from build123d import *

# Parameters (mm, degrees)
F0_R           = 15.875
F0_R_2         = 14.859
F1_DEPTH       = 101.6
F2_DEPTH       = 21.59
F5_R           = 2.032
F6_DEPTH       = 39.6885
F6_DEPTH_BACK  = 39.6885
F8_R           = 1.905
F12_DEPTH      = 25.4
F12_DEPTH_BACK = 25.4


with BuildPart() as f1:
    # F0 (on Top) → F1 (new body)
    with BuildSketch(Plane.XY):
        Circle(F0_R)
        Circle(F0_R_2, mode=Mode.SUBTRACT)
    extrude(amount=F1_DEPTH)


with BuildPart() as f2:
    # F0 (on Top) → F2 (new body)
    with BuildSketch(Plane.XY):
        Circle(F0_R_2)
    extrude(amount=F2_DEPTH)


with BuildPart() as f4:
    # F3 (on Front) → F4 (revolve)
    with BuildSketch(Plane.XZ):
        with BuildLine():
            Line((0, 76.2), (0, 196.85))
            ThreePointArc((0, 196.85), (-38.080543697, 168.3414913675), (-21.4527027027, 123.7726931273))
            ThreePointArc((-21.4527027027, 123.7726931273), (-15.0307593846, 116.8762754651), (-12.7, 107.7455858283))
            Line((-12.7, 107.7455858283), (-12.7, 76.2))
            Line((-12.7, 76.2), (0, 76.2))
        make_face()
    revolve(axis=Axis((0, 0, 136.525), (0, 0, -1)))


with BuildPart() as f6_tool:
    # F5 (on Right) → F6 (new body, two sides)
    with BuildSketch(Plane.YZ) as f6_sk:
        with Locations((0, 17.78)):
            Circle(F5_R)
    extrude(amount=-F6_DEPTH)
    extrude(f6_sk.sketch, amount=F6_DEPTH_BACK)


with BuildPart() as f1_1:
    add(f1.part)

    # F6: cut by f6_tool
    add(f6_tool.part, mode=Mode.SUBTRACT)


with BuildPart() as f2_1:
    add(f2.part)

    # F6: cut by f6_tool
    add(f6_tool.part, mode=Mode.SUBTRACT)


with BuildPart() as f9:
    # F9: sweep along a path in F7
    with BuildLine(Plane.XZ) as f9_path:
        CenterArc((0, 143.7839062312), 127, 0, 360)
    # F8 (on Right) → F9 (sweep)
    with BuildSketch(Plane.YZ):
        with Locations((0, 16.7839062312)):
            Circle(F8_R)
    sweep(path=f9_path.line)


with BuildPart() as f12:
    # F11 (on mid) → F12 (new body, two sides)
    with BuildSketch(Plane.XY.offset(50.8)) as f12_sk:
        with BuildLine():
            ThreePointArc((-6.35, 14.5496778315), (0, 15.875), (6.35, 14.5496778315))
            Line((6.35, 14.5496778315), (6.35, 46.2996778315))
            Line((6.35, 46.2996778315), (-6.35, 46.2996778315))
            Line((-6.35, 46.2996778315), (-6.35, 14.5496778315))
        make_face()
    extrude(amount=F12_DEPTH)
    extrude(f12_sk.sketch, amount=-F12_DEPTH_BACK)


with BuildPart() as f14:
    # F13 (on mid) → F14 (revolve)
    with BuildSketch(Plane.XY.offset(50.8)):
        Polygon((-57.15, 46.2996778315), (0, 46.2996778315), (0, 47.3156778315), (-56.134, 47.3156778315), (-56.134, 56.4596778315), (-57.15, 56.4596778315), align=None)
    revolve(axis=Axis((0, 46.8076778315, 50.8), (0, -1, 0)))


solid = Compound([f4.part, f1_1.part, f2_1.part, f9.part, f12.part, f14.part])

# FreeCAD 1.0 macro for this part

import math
import FreeCAD as App
import Part
import Sketcher
Q = App.Units.Quantity


def add_polygon(sketch, points):
    """Adds a closed chain of lines whose ends are joined by coincident constraints."""
    first, n = sketch.GeometryCount, len(points)
    for a, b in zip(points, points[1:] + points[:1]):
        sketch.addGeometry(Part.LineSegment(App.Vector(*a, 0), App.Vector(*b, 0)), False)
    for i in range(n):
        sketch.addConstraint(Sketcher.Constraint("Coincident", first + i, 2, first + (i + 1) % n, 1))

doc = App.newDocument("Part")
body = doc.addObject("PartDesign::Body", "Body")

sketch1 = body.newObject("Sketcher::SketchObject", "Sketch")
sketch1.AttachmentSupport = (doc.getObject("XY_Plane"), [""])
sketch1.MapMode = "FlatFace"
sketch1.addGeometry([
    Part.Circle(App.Vector(0, 0, 0), App.Vector(0, 0, 1), 15.875),
    Part.Circle(App.Vector(0, 0, 0), App.Vector(0, 0, 1), 14.859),
], False)
sketch1.addConstraint([
    Sketcher.Constraint("Coincident", 0, 3, -1, 1),
    Sketcher.Constraint("Coincident", 1, 3, -1, 1),
    Sketcher.Constraint("Diameter", 0, Q("1.25 in")),
    Sketcher.Constraint("Diameter", 1, Q("1.17 in")),
])
pad1 = body.newObject("PartDesign::Pad", "Pad")
pad1.Profile = sketch1
pad1.Length = Q("4 in")
body2 = doc.addObject("PartDesign::Body", "Body001")

sketch2 = body2.newObject("Sketcher::SketchObject", "Sketch001")
sketch2.AttachmentSupport = (doc.getObject("XY_Plane001"), [""])
sketch2.MapMode = "FlatFace"
sketch2.addGeometry(Part.Circle(App.Vector(0, 0, 0), App.Vector(0, 0, 1), 14.859), False)
sketch2.addConstraint([
    Sketcher.Constraint("Coincident", 0, 3, -1, 1),
    Sketcher.Constraint("Diameter", 0, Q("1.17 in")),
])
pad2 = body2.newObject("PartDesign::Pad", "Pad001")
pad2.Profile = sketch2
pad2.Length = Q("0.85 in")
body3 = doc.addObject("PartDesign::Body", "Body002")

sketch3 = body3.newObject("Sketcher::SketchObject", "Sketch002")
sketch3.AttachmentSupport = (doc.getObject("XZ_Plane002"), [""])
sketch3.MapMode = "FlatFace"
sketch3.addGeometry([
    Part.LineSegment(App.Vector(0, 76.2, 0), App.Vector(0, 196.85, 0)),
    Part.ArcOfCircle(Part.Circle(App.Vector(0, 157.1625, 0), App.Vector(0, 0, 1), 39.6875), math.radians(90), math.radians(237.279557)),
    Part.ArcOfCircle(Part.Circle(App.Vector(-31.75, 107.745586, 0), App.Vector(0, 0, 1), 19.05), math.radians(0), math.radians(57.279557)),
    Part.LineSegment(App.Vector(-12.7, 107.745586, 0), App.Vector(-12.7, 76.2, 0)),
    Part.LineSegment(App.Vector(-12.7, 76.2, 0), App.Vector(0, 76.2, 0)),
], False)
sketch3.addConstraint([
    Sketcher.Constraint("Coincident", 0, 2, 1, 1),
    Sketcher.Constraint("Tangent", 1, 2, 2, 2),
    Sketcher.Constraint("Tangent", 2, 1, 3, 1),
    Sketcher.Constraint("Coincident", 3, 2, 4, 1),
    Sketcher.Constraint("Coincident", 4, 2, 0, 1),
    Sketcher.Constraint("Vertical", 0),
    Sketcher.Constraint("Vertical", 3),
    Sketcher.Constraint("Horizontal", 4),
    Sketcher.Constraint("PointOnObject", 1, 3, -2),
    Sketcher.Constraint("PointOnObject", 0, 2, -2),
    Sketcher.Constraint("Radius", 2, Q("0.75 in")),
    Sketcher.Constraint("DistanceX", 4, 1, 4, 2, Q("0.5 in")),
    Sketcher.Constraint("DistanceY", -1, 1, 3, 2, Q("3 in")),
    Sketcher.Constraint("Radius", 1, Q("1.5625 in")),
    Sketcher.Constraint("DistanceY", 0, 1, 0, 2, Q("4.75 in")),
])
revolution = body3.newObject("PartDesign::Revolution", "Revolution")
revolution.Profile = sketch3
revolution.ReferenceAxis = (sketch3, ["V_Axis"])
revolution.Angle = 360
body4 = doc.addObject("PartDesign::Body", "Body003")

sketch4 = body4.newObject("Sketcher::SketchObject", "Sketch003")
sketch4.AttachmentSupport = (doc.getObject("YZ_Plane003"), [""])
sketch4.MapMode = "FlatFace"
sketch4.addGeometry(Part.Circle(App.Vector(0, 17.78, 0), App.Vector(0, 0, 1), 2.032), False)
sketch4.addConstraint([
    Sketcher.Constraint("PointOnObject", 0, 3, -2),
    Sketcher.Constraint("Diameter", 0, Q("0.16 in")),
    Sketcher.Constraint("DistanceY", -1, 1, 0, 3, Q("0.7 in")),
])
pad3 = body4.newObject("PartDesign::Pad", "Pad002")
pad3.Profile = sketch4
pad3.Type = "TwoLengths"
pad3.Length = 39.6885
pad3.Length2 = 39.6885
pad3.Reversed = True
doc.recompute()

body5 = doc.addObject("PartDesign::Body", "Body004")
body5.BaseFeature = body4
boolean = body.newObject("PartDesign::Boolean", "Boolean")
boolean.Type = "Cut"
boolean.addObjects([body5])
doc.recompute()

boolean2 = body2.newObject("PartDesign::Boolean", "Boolean001")
boolean2.Type = "Cut"
boolean2.addObjects([body4])
body6 = doc.addObject("PartDesign::Body", "Body005")

sketch5 = body6.newObject("Sketcher::SketchObject", "Sketch004")
sketch5.AttachmentSupport = (doc.getObject("YZ_Plane005"), [""])
sketch5.MapMode = "FlatFace"
sketch5.addGeometry(Part.Circle(App.Vector(0, 16.783906, 0), App.Vector(0, 0, 1), 1.905), False)
sketch5.addConstraint([
    Sketcher.Constraint("PointOnObject", 0, 3, -2),
    Sketcher.Constraint("Diameter", 0, Q("0.15 in")),
    Sketcher.Constraint("DistanceY", -1, 1, 0, 3, 16.783906),
])

sketch6 = body6.newObject("Sketcher::SketchObject", "Sketch005")
sketch6.AttachmentSupport = (doc.getObject("XZ_Plane005"), [""])
sketch6.MapMode = "FlatFace"
sketch6.addGeometry(Part.Circle(App.Vector(0, 143.783906, 0), App.Vector(0, 0, 1), 127), False)
sketch6.addConstraint([
    Sketcher.Constraint("PointOnObject", 0, 3, -2),
    Sketcher.Constraint("Diameter", 0, Q("10 in")),
    Sketcher.Constraint("DistanceY", -1, 1, 0, 3, 143.783906),
])
doc.recompute()

additivepipe = body6.newObject("PartDesign::AdditivePipe", "AdditivePipe")
additivepipe.Profile = sketch5
additivepipe.Spine = (sketch6, ["Edge1"])
body7 = doc.addObject("PartDesign::Body", "Body006")

sketch7 = body7.newObject("Sketcher::SketchObject", "Sketch006")
sketch7.AttachmentSupport = (doc.getObject("XY_Plane006"), [""])
sketch7.MapMode = "FlatFace"
sketch7.AttachmentOffset = App.Placement(App.Vector(0, 0, 2 * 25.4), App.Rotation())
sketch7.addGeometry([
    Part.ArcOfCircle(Part.Circle(App.Vector(0, 0, 0), App.Vector(0, 0, 1), 15.875), math.radians(66.421822), math.radians(113.578178)),
    Part.LineSegment(App.Vector(6.35, 14.549678, 0), App.Vector(6.35, 46.299678, 0)),
    Part.LineSegment(App.Vector(6.35, 46.299678, 0), App.Vector(-6.35, 46.299678, 0)),
    Part.LineSegment(App.Vector(-6.35, 46.299678, 0), App.Vector(-6.35, 14.549678, 0)),
], False)
sketch7.addConstraint([
    Sketcher.Constraint("Coincident", 0, 1, 1, 1),
    Sketcher.Constraint("Coincident", 1, 2, 2, 1),
    Sketcher.Constraint("Coincident", 2, 2, 3, 1),
    Sketcher.Constraint("Coincident", 3, 2, 0, 2),
    Sketcher.Constraint("Vertical", 1),
    Sketcher.Constraint("Horizontal", 2),
    Sketcher.Constraint("Vertical", 3),
    Sketcher.Constraint("Coincident", 0, 3, -1, 1),
    Sketcher.Constraint("Horizontal", 0, 1, 3, 2),
    Sketcher.Constraint("DistanceX", 2, 2, 2, 1, Q("0.5 in")),
    Sketcher.Constraint("Radius", 0, Q("0.625 in")),
    Sketcher.Constraint("DistanceY", 1, 1, 1, 2, Q("1.25 in")),
])
pad4 = body7.newObject("PartDesign::Pad", "Pad003")
pad4.Profile = sketch7
pad4.Type = "TwoLengths"
pad4.Length = Q("1 in")
pad4.Length2 = Q("1 in")
body8 = doc.addObject("PartDesign::Body", "Body007")

sketch8 = body8.newObject("Sketcher::SketchObject", "Sketch007")
sketch8.AttachmentSupport = (doc.getObject("XY_Plane007"), [""])
sketch8.MapMode = "FlatFace"
sketch8.AttachmentOffset = App.Placement(App.Vector(0, 0, 2 * 25.4), App.Rotation())
add_polygon(sketch8, [(-57.15, 46.299678), (0, 46.299678), (0, 47.315678), (-56.134, 47.315678), (-56.134, 56.459678), (-57.15, 56.459678)])
sketch8.addConstraint([
    Sketcher.Constraint("Horizontal", 0),
    Sketcher.Constraint("Vertical", 1),
    Sketcher.Constraint("Horizontal", 2),
    Sketcher.Constraint("Vertical", 3),
    Sketcher.Constraint("Horizontal", 4),
    Sketcher.Constraint("Vertical", 5),
    Sketcher.Constraint("PointOnObject", 0, 2, -2),
    Sketcher.Constraint("Equal", 4, 1),
    Sketcher.Constraint("DistanceY", 5, 2, 5, 1, Q("0.4 in")),
    Sketcher.Constraint("DistanceX", 0, 1, 0, 2, Q("2.25 in")),
    Sketcher.Constraint("DistanceX", 2, 2, 2, 1, Q("2.21 in")),
    Sketcher.Constraint("DistanceY", -1, 1, 0, 2, 46.299678),
])
revolution2 = body8.newObject("PartDesign::Revolution", "Revolution001")
revolution2.Profile = sketch8
revolution2.ReferenceAxis = (sketch8, ["V_Axis"])
revolution2.Angle = 360

doc.recompute()
